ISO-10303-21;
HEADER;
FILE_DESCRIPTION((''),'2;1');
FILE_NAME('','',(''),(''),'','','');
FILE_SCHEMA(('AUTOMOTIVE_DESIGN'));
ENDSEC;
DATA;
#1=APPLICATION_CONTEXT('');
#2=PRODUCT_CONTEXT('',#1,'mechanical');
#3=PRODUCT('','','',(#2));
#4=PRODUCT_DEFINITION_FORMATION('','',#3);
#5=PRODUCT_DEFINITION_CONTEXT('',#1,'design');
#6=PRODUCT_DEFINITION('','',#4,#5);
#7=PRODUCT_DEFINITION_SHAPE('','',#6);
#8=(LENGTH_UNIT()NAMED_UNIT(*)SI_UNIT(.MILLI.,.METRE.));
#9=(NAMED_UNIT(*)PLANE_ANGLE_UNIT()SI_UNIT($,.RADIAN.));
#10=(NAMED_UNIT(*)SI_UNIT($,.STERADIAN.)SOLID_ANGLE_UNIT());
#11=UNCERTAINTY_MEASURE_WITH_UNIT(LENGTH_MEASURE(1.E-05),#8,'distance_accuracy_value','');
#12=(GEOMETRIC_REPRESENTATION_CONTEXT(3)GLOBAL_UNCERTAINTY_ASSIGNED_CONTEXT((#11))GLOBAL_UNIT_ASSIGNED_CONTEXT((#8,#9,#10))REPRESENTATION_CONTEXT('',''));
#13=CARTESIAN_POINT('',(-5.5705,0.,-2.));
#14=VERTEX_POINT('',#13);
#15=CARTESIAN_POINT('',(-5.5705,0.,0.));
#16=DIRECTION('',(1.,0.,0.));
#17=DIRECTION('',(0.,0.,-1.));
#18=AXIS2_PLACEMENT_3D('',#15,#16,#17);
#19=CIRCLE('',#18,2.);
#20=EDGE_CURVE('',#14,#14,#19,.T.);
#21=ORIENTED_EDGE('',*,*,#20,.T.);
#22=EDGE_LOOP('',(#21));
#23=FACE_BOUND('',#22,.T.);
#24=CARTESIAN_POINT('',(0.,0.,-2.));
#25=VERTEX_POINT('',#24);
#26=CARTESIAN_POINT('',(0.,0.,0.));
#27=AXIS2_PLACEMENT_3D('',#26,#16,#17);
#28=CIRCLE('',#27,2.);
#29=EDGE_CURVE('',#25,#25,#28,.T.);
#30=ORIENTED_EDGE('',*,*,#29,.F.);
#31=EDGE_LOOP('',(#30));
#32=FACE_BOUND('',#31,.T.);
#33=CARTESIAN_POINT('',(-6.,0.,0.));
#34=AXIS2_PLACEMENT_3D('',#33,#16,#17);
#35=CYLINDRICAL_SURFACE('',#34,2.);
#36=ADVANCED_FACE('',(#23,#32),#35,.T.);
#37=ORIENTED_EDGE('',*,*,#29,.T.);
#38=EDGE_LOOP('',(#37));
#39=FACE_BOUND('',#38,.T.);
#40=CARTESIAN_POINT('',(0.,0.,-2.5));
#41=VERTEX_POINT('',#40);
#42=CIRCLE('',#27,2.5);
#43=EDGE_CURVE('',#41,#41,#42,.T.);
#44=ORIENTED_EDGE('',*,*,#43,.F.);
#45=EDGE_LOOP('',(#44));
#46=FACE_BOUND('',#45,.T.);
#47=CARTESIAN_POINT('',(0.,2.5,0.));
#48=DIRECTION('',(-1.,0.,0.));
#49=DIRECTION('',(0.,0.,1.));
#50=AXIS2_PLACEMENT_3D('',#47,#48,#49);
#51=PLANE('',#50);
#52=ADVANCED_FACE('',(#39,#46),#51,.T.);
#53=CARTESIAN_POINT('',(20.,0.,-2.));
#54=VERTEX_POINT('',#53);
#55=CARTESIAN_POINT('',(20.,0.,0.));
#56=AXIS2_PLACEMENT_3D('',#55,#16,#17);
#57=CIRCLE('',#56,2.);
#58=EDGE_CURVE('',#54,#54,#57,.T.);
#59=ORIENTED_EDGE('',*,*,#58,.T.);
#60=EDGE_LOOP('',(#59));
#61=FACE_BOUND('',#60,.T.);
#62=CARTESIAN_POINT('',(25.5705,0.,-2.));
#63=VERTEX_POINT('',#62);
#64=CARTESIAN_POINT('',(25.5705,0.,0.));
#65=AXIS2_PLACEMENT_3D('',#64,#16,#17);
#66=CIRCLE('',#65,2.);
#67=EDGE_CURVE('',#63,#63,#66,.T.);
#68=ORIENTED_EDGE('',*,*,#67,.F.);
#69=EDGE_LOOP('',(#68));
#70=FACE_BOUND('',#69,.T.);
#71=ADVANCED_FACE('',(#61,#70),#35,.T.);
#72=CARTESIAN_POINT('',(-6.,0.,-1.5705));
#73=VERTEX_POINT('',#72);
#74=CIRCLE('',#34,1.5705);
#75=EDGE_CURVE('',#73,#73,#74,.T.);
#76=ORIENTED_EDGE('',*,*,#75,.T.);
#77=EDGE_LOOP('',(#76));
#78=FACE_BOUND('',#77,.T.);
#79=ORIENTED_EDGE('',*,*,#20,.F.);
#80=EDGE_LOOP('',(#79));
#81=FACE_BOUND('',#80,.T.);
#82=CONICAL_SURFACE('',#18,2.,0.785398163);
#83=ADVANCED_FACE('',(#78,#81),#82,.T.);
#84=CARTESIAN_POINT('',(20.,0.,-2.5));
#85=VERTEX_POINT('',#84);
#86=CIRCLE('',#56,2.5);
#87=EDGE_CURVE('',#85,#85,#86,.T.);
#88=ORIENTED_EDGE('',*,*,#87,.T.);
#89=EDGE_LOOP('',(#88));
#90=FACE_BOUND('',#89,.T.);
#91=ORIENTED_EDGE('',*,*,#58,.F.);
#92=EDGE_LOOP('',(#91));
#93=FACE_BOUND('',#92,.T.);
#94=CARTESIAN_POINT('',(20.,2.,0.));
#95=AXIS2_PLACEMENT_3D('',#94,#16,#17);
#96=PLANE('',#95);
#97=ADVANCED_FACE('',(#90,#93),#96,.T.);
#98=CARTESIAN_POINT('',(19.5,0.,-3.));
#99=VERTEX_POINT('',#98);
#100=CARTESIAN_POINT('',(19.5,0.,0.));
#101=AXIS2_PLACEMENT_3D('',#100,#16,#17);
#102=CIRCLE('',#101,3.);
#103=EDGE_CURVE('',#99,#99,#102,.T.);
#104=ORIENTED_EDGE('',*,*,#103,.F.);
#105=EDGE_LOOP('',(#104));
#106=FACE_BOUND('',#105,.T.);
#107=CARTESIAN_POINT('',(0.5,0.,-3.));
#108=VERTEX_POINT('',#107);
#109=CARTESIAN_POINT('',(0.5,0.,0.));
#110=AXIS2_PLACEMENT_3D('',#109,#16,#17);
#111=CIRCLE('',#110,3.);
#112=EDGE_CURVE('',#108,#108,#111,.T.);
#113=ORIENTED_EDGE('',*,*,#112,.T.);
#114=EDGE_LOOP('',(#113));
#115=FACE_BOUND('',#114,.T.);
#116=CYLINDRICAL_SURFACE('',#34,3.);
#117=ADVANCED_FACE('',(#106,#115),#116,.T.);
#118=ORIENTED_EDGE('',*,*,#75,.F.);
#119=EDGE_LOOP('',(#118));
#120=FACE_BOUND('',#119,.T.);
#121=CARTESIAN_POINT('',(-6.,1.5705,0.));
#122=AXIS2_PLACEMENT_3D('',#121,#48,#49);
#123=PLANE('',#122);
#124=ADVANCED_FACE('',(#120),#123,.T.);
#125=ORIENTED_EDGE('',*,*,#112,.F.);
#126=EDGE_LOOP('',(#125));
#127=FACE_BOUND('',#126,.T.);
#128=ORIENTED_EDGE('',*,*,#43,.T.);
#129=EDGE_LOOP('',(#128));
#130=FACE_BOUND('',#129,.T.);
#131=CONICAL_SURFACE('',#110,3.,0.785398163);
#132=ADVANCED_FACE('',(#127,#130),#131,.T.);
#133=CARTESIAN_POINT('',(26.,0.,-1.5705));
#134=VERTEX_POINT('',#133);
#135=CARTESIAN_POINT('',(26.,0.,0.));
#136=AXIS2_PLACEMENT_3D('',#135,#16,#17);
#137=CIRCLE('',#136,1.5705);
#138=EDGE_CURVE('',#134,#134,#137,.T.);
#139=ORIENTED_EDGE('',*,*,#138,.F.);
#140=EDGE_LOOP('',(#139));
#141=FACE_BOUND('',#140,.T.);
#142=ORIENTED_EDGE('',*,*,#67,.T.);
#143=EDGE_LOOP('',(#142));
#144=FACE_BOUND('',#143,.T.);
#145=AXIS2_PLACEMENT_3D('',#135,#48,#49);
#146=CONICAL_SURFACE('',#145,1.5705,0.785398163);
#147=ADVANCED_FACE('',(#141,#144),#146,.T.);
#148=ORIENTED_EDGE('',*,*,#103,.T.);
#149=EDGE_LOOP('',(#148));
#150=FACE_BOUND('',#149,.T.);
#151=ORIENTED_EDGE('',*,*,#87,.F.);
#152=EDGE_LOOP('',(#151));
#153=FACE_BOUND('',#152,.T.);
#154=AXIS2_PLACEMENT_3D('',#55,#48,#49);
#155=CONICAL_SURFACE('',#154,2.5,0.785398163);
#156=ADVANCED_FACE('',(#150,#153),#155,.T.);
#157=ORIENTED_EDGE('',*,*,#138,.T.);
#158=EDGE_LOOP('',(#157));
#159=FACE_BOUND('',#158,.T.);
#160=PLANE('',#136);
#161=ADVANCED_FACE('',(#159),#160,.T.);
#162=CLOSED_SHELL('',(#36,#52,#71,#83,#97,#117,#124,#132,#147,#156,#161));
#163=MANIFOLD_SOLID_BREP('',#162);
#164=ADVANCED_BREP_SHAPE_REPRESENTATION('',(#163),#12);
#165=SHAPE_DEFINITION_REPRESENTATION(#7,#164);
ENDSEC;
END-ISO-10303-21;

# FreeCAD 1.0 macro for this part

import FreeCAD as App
import Part
import Sketcher

V = App.Vector

doc = App.newDocument("Part")
body = doc.addObject("PartDesign::Body", "Body")

# Sketch on XY plane
sketch1 = body.newObject("Sketcher::SketchObject", "Sketch")
sketch1.AttachmentSupport = (doc.getObject("XY_Plane"), [""])
sketch1.MapMode = "FlatFace"
sketch1.addGeometry([
    Part.LineSegment(V(-6, 1.6, 0), V(-6, 0, 0)),  # 0
    Part.LineSegment(V(-6, 0, 0), V(26, 0, 0)),  # 1
    Part.LineSegment(V(26, 0, 0), V(26, 1.6, 0)),  # 2
    Part.LineSegment(V(26, 1.6, 0), V(25.6, 2, 0)),  # 3
    Part.LineSegment(V(25.6, 2, 0), V(20, 2, 0)),  # 4
    Part.LineSegment(V(20, 2, 0), V(20, 2.5, 0)),  # 5
    Part.LineSegment(V(20, 2.5, 0), V(19.5, 3, 0)),  # 6
    Part.LineSegment(V(19.5, 3, 0), V(0.5, 3, 0)),  # 7
    Part.LineSegment(V(0.5, 3, 0), V(0, 2.5, 0)),  # 8
    Part.LineSegment(V(0, 2.5, 0), V(0, 2, 0)),  # 9
    Part.LineSegment(V(0, 2, 0), V(-5.6, 2, 0)),  # 10
    Part.LineSegment(V(-5.6, 2, 0), V(-6, 1.6, 0)),  # 11
], False)
sketch1.addConstraint([
    Sketcher.Constraint("Coincident", 0, 2, 1, 1),
    Sketcher.Constraint("Coincident", 1, 2, 2, 1),
    Sketcher.Constraint("Coincident", 2, 2, 3, 1),
    Sketcher.Constraint("Coincident", 3, 2, 4, 1),
    Sketcher.Constraint("Coincident", 4, 2, 5, 1),
    Sketcher.Constraint("Coincident", 5, 2, 6, 1),
    Sketcher.Constraint("Coincident", 6, 2, 7, 1),
    Sketcher.Constraint("Coincident", 7, 2, 8, 1),
    Sketcher.Constraint("Coincident", 8, 2, 9, 1),
    Sketcher.Constraint("Coincident", 9, 2, 10, 1),
    Sketcher.Constraint("Coincident", 10, 2, 11, 1),
    Sketcher.Constraint("Coincident", 11, 2, 0, 1),
    Sketcher.Constraint("Vertical", 0),
    Sketcher.Constraint("Horizontal", 1),
    Sketcher.Constraint("Vertical", 2),
    Sketcher.Constraint("Horizontal", 4),
    Sketcher.Constraint("Vertical", 5),
    Sketcher.Constraint("Horizontal", 7),
    Sketcher.Constraint("Vertical", 9),
    Sketcher.Constraint("Horizontal", 10),
    Sketcher.Constraint("PointOnObject", 0, 2, -1),
    Sketcher.Constraint("PointOnObject", 8, 2, -2),
    Sketcher.Constraint("Parallel", 3, 6),
    Sketcher.Constraint("Perpendicular", 6, 8),
    Sketcher.Constraint("Parallel", 8, 11),
    Sketcher.Constraint("Horizontal", 5, 2, 8, 2),
    Sketcher.Constraint("Horizontal", 4, 2, 9, 2),
    Sketcher.Constraint("Horizontal", 2, 2, 11, 2),
    Sketcher.Constraint("Equal", 4, 10),
    Sketcher.Constraint("Equal", 6, 8),
    Sketcher.Constraint("DistanceX", 1, 1, 1, 2, 32.0),
    Sketcher.Constraint("DistanceX", 7, 2, 7, 1, 19.0),
    Sketcher.Constraint("DistanceY", 5, 1, 5, 2, 0.5),
    Sketcher.Constraint("DistanceX", 0, 2, -1, 1, 6.0),
    Sketcher.Constraint("DistanceY", -1, 1, 3, 2, 2.0),
    Sketcher.Constraint("DistanceX", 4, 2, 4, 1, 5.5705),
])
revolution = body.newObject("PartDesign::Revolution", "Revolution")
revolution.Profile = sketch1
revolution.ReferenceAxis = (sketch1, ["H_Axis"])
revolution.Angle = 360

doc.recompute()
